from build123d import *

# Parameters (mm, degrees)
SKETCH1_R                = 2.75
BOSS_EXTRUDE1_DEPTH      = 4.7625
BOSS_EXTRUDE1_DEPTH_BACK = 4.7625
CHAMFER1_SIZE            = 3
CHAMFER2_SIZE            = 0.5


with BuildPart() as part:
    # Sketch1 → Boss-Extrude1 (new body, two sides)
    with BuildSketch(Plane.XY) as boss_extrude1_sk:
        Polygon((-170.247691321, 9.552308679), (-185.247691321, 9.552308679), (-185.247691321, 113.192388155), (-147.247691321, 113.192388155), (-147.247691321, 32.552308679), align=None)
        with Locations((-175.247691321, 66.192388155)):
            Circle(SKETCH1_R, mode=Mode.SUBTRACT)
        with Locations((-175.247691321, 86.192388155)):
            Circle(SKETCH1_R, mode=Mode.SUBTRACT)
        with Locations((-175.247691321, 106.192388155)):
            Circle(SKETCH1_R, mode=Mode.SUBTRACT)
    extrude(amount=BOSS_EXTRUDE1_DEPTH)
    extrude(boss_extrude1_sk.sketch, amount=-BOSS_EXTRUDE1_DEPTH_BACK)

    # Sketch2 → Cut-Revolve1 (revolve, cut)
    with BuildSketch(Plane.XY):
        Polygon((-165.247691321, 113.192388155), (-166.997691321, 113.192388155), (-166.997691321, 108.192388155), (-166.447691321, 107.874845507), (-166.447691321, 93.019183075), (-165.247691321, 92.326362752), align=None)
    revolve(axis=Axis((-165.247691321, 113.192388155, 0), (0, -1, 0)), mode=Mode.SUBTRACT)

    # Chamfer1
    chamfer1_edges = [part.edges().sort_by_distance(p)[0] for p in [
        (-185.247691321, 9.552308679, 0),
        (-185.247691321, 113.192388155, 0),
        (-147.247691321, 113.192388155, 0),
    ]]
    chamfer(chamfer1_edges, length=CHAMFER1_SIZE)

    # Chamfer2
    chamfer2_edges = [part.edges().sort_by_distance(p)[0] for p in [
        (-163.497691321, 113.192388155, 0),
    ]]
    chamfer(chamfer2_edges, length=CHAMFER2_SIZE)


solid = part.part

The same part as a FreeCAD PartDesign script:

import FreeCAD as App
import Part
import Sketcher
from FreeCAD import Vector
Q = App.Units.Quantity


def edges_at(feature, points):
    """Names of the edges that pass closest to the given points."""
    edges = feature.Shape.Edges
    near = lambda p: min(range(len(edges)), key=lambda i: edges[i].distToShape(Part.Vertex(*p))[0])
    return sorted({f"Edge{near(p) + 1}" for p in points})

doc = App.newDocument("Part")
body = doc.addObject("PartDesign::Body", "Body")

# Sketch on XY plane
sketch1 = body.newObject("Sketcher::SketchObject", "Sketch")
sketch1.AttachmentSupport = (doc.getObject("XY_Plane"), [""])
sketch1.MapMode = "FlatFace"
sketch1.addGeometry(Part.LineSegment(Vector(-185.2, 9.6, 0), Vector(-170.2, 9.6, 0)), False)
sketch1.addGeometry(Part.LineSegment(Vector(-170.2, 9.6, 0), Vector(-147.2, 32.6, 0)), False)
sketch1.addGeometry(Part.LineSegment(Vector(-147.2, 32.6, 0), Vector(-147.2, 113.2, 0)), False)
sketch1.addGeometry(Part.LineSegment(Vector(-147.2, 113.2, 0), Vector(-185.2, 113.2, 0)), False)
sketch1.addGeometry(Part.LineSegment(Vector(-185.2, 113.2, 0), Vector(-185.2, 9.6, 0)), False)
sketch1.addGeometry(Part.Circle(Vector(-175.2, 66.2, 0), Vector(0, 0, 1), 2.8), False)
sketch1.addGeometry(Part.Circle(Vector(-175.2, 86.2, 0), Vector(0, 0, 1), 2.8), False)
sketch1.addGeometry(Part.Circle(Vector(-175.2, 106.2, 0), Vector(0, 0, 1), 2.8), False)
sketch1.addConstraint(Sketcher.Constraint("Coincident", 0, 2, 1, 1))
sketch1.addConstraint(Sketcher.Constraint("Coincident", 1, 2, 2, 1))
sketch1.addConstraint(Sketcher.Constraint("Coincident", 2, 2, 3, 1))
sketch1.addConstraint(Sketcher.Constraint("Coincident", 3, 2, 4, 1))
sketch1.addConstraint(Sketcher.Constraint("Coincident", 4, 2, 0, 1))
sketch1.addConstraint(Sketcher.Constraint("Horizontal", 0))
sketch1.addConstraint(Sketcher.Constraint("Vertical", 2))
sketch1.addConstraint(Sketcher.Constraint("Horizontal", 3))
sketch1.addConstraint(Sketcher.Constraint("Vertical", 4))
sketch1.addConstraint(Sketcher.Constraint("Equal", 5, 6))
sketch1.addConstraint(Sketcher.Constraint("Equal", 6, 7))
sketch1.addConstraint(Sketcher.Constraint("Vertical", 5, 3, 6, 3))
sketch1.addConstraint(Sketcher.Constraint("Vertical", 6, 3, 7, 3))
sketch1.addConstraint(Sketcher.Constraint("Diameter", 5, Q("5.5 mm")))
sketch1.addConstraint(Sketcher.Constraint("DistanceX", 0, 1, 0, 2, Q("15 mm")))
sketch1.addConstraint(Sketcher.Constraint("DistanceX", 3, 2, 3, 1, Q("38 mm")))
sketch1.addConstraint(Sketcher.Constraint("Angle", 1, Q("45 deg")))
sketch1.addConstraint(Sketcher.Constraint("DistanceY", 5, 3, 6, 3, Q("20 mm")))
sketch1.addConstraint(Sketcher.Constraint("DistanceY", 6, 3, 7, 3, Q("20 mm")))
sketch1.addConstraint(Sketcher.Constraint("DistanceX", 5, 3, 0, 2, Q("5 mm")))
sketch1.addConstraint(Sketcher.Constraint("DistanceY", 7, 3, 2, 2, Q("7 mm")))
sketch1.addConstraint(Sketcher.Constraint("DistanceY", 2, 1, 2, 2, Q("80.640079 mm")))
sketch1.addConstraint(Sketcher.Constraint("DistanceX", 5, 3, -1, 1, Q("175.247691 mm")))
sketch1.addConstraint(Sketcher.Constraint("DistanceY", -1, 1, 5, 3, Q("66.192388 mm")))
pad1 = body.newObject("PartDesign::Pad", "Pad")
pad1.Profile = sketch1
pad1.Type = "TwoLengths"
pad1.Length = 4.7625
pad1.Length2 = 4.7625

# Sketch on XY plane
sketch2 = body.newObject("Sketcher::SketchObject", "Sketch001")
sketch2.AttachmentSupport = (doc.getObject("XY_Plane"), [""])
sketch2.MapMode = "FlatFace"
sketch2.addGeometry(Part.LineSegment(Vector(-165.2, 113.2, 0), Vector(-167, 113.2, 0)), False)
sketch2.addGeometry(Part.LineSegment(Vector(-167, 113.2, 0), Vector(-167, 108.2, 0)), False)
sketch2.addGeometry(Part.LineSegment(Vector(-167, 108.2, 0), Vector(-166.4, 107.9, 0)), False)
sketch2.addGeometry(Part.LineSegment(Vector(-166.4, 107.9, 0), Vector(-166.4, 93, 0)), False)
sketch2.addGeometry(Part.LineSegment(Vector(-166.4, 93, 0), Vector(-165.2, 92.3, 0)), False)
sketch2.addGeometry(Part.LineSegment(Vector(-165.2, 92.3, 0), Vector(-165.2, 113.2, 0)), False)
sketch2.addGeometry(Part.LineSegment(Vector(-165.2, 113.2, 0), Vector(-165.2, 92.3, 0)), True)  # axis
sketch2.addConstraint(Sketcher.Constraint("Coincident", 0, 2, 1, 1))
sketch2.addConstraint(Sketcher.Constraint("Coincident", 1, 2, 2, 1))
sketch2.addConstraint(Sketcher.Constraint("Coincident", 2, 2, 3, 1))
sketch2.addConstraint(Sketcher.Constraint("Coincident", 3, 2, 4, 1))
sketch2.addConstraint(Sketcher.Constraint("Coincident", 4, 2, 5, 1))
sketch2.addConstraint(Sketcher.Constraint("Coincident", 5, 2, 0, 1))
sketch2.addConstraint(Sketcher.Constraint("Horizontal", 0))
sketch2.addConstraint(Sketcher.Constraint("Vertical", 1))
sketch2.addConstraint(Sketcher.Constraint("Vertical", 3))
sketch2.addConstraint(Sketcher.Constraint("Vertical", 5))
sketch2.addConstraint(Sketcher.Constraint("Vertical", 6))
sketch2.addConstraint(Sketcher.Constraint("Coincident", 6, 1, 5, 2))
sketch2.addConstraint(Sketcher.Constraint("Parallel", 2, 4))
sketch2.addConstraint(Sketcher.Constraint("Equal", 5, 6))
sketch2.addConstraint(Sketcher.Constraint("DistanceY", 1, 2, 1, 1, Q("5 mm")))
sketch2.addConstraint(Sketcher.Constraint("Angle", 2, Q("-30 deg")))
sketch2.addConstraint(Sketcher.Constraint("DistanceX", 0, 2, 0, 1, Q("1.75 mm")))
sketch2.addConstraint(Sketcher.Constraint("DistanceX", 3, 2, 4, 2, Q("1.2 mm")))
sketch2.addConstraint(Sketcher.Constraint("DistanceY", 3, 2, 3, 1, Q("14.855662 mm")))
sketch2.addConstraint(Sketcher.Constraint("DistanceX", 0, 2, -1, 1, Q("166.997691 mm")))
sketch2.addConstraint(Sketcher.Constraint("DistanceY", -1, 1, 0, 2, Q("113.192388 mm")))
groove = body.newObject("PartDesign::Groove", "Groove")
groove.Profile = sketch2
groove.ReferenceAxis = (sketch2, ["Axis0"])
groove.Angle = 360
doc.recompute()

chamfer = body.newObject("PartDesign::Chamfer", "Chamfer")
chamfer.Base = (groove, edges_at(groove, [(-185.248, 9.552, 0), (-185.248, 113.192, 0), (-147.248, 113.192, 0)]))
chamfer.Size = 3
doc.recompute()

chamfer2 = body.newObject("PartDesign::Chamfer", "Chamfer001")
chamfer2.Base = (chamfer, edges_at(chamfer, [(-163.498, 113.192, 0)]))
chamfer2.Size = 0.5

doc.recompute()
